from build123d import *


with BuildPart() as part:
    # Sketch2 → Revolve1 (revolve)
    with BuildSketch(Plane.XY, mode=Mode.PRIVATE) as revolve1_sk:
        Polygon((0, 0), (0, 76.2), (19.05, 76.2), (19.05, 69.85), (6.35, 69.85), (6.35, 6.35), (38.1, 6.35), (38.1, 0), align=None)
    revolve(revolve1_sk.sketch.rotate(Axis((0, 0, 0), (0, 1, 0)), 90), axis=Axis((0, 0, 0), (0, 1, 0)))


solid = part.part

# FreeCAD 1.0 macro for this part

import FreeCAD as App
import Part
import Sketcher

V = App.Vector
Q = App.Units.Quantity

doc = App.newDocument("Part")
params = doc.addObject("Spreadsheet::Sheet", "Params")
for row, (alias, value) in enumerate([
    ("sketch1_height", "3 in"),
    ("sketch1_width", "1.5 in"),
    ("sketch1_width2", "0.5 in"),
    ("sketch1_height2", "2.5 in"),
    ("sketch1_width3", "1.25 in"),
    ("revolution_angle", "360 deg"),
], start=1):
    params.set(f"A{row}", alias)
    params.set(f"B{row}", "=" + value)
    params.setAlias(f"B{row}", alias)

body = doc.addObject("PartDesign::Body", "Body")

# Sketch on XY plane
sketch1 = body.newObject("Sketcher::SketchObject", "Sketch")
sketch1.AttachmentSupport = (doc.getObject("XY_Plane"), [""])
sketch1.MapMode = "FlatFace"
sketch1.addGeometry(Part.LineSegment(V(0, 76, 0), V(0, 0, 0)), False)
sketch1.addGeometry(Part.LineSegment(V(0, 0, 0), V(38, 0, 0)), False)
sketch1.addGeometry(Part.LineSegment(V(38, 0, 0), V(38, 6, 0)), False)
sketch1.addGeometry(Part.LineSegment(V(38, 6, 0), V(6, 6, 0)), False)
sketch1.addGeometry(Part.LineSegment(V(6, 6, 0), V(6, 70, 0)), False)
sketch1.addGeometry(Part.LineSegment(V(6, 70, 0), V(19, 70, 0)), False)
sketch1.addGeometry(Part.LineSegment(V(19, 70, 0), V(19, 76, 0)), False)
sketch1.addGeometry(Part.LineSegment(V(19, 76, 0), V(0, 76, 0)), False)
sketch1.addConstraint(Sketcher.Constraint("Coincident", 0, 2, 1, 1))
sketch1.addConstraint(Sketcher.Constraint("Coincident", 1, 2, 2, 1))
sketch1.addConstraint(Sketcher.Constraint("Coincident", 2, 2, 3, 1))
sketch1.addConstraint(Sketcher.Constraint("Coincident", 3, 2, 4, 1))
sketch1.addConstraint(Sketcher.Constraint("Coincident", 4, 2, 5, 1))
sketch1.addConstraint(Sketcher.Constraint("Coincident", 5, 2, 6, 1))
sketch1.addConstraint(Sketcher.Constraint("Coincident", 6, 2, 7, 1))
sketch1.addConstraint(Sketcher.Constraint("Coincident", 7, 2, 0, 1))
sketch1.addConstraint(Sketcher.Constraint("Vertical", 0))
sketch1.addConstraint(Sketcher.Constraint("Horizontal", 1))
sketch1.addConstraint(Sketcher.Constraint("Vertical", 2))
sketch1.addConstraint(Sketcher.Constraint("Horizontal", 3))
sketch1.addConstraint(Sketcher.Constraint("Vertical", 4))
sketch1.addConstraint(Sketcher.Constraint("Horizontal", 5))
sketch1.addConstraint(Sketcher.Constraint("Vertical", 6))
sketch1.addConstraint(Sketcher.Constraint("Horizontal", 7))
sketch1.addConstraint(Sketcher.Constraint("Coincident", 0, 2, -1, 1))
sketch1.addConstraint(Sketcher.Constraint("Equal", 2, 6))
sketch1.addConstraint(Sketcher.Constraint("DistanceY", 0, 2, 0, 1, Q("3 in")))
sketch1.addConstraint(Sketcher.Constraint("DistanceX", 1, 1, 1, 2, Q("1.5 in")))
sketch1.addConstraint(Sketcher.Constraint("DistanceX", 5, 1, 5, 2, Q("0.5 in")))
sketch1.addConstraint(Sketcher.Constraint("DistanceY", 4, 1, 4, 2, Q("2.5 in")))
sketch1.addConstraint(Sketcher.Constraint("DistanceX", 3, 2, 3, 1, Q("1.25 in")))
sketch1.setExpression("Constraints[18]", "Params.sketch1_height")
sketch1.setExpression("Constraints[19]", "Params.sketch1_width")
sketch1.setExpression("Constraints[20]", "Params.sketch1_width2")
sketch1.setExpression("Constraints[21]", "Params.sketch1_height2")
sketch1.setExpression("Constraints[22]", "Params.sketch1_width3")
revolution = body.newObject("PartDesign::Revolution", "Revolution")
revolution.Profile = sketch1
revolution.ReferenceAxis = (sketch1, ["V_Axis"])
revolution.setExpression("Angle", "Params.revolution_angle")

doc.recompute()
